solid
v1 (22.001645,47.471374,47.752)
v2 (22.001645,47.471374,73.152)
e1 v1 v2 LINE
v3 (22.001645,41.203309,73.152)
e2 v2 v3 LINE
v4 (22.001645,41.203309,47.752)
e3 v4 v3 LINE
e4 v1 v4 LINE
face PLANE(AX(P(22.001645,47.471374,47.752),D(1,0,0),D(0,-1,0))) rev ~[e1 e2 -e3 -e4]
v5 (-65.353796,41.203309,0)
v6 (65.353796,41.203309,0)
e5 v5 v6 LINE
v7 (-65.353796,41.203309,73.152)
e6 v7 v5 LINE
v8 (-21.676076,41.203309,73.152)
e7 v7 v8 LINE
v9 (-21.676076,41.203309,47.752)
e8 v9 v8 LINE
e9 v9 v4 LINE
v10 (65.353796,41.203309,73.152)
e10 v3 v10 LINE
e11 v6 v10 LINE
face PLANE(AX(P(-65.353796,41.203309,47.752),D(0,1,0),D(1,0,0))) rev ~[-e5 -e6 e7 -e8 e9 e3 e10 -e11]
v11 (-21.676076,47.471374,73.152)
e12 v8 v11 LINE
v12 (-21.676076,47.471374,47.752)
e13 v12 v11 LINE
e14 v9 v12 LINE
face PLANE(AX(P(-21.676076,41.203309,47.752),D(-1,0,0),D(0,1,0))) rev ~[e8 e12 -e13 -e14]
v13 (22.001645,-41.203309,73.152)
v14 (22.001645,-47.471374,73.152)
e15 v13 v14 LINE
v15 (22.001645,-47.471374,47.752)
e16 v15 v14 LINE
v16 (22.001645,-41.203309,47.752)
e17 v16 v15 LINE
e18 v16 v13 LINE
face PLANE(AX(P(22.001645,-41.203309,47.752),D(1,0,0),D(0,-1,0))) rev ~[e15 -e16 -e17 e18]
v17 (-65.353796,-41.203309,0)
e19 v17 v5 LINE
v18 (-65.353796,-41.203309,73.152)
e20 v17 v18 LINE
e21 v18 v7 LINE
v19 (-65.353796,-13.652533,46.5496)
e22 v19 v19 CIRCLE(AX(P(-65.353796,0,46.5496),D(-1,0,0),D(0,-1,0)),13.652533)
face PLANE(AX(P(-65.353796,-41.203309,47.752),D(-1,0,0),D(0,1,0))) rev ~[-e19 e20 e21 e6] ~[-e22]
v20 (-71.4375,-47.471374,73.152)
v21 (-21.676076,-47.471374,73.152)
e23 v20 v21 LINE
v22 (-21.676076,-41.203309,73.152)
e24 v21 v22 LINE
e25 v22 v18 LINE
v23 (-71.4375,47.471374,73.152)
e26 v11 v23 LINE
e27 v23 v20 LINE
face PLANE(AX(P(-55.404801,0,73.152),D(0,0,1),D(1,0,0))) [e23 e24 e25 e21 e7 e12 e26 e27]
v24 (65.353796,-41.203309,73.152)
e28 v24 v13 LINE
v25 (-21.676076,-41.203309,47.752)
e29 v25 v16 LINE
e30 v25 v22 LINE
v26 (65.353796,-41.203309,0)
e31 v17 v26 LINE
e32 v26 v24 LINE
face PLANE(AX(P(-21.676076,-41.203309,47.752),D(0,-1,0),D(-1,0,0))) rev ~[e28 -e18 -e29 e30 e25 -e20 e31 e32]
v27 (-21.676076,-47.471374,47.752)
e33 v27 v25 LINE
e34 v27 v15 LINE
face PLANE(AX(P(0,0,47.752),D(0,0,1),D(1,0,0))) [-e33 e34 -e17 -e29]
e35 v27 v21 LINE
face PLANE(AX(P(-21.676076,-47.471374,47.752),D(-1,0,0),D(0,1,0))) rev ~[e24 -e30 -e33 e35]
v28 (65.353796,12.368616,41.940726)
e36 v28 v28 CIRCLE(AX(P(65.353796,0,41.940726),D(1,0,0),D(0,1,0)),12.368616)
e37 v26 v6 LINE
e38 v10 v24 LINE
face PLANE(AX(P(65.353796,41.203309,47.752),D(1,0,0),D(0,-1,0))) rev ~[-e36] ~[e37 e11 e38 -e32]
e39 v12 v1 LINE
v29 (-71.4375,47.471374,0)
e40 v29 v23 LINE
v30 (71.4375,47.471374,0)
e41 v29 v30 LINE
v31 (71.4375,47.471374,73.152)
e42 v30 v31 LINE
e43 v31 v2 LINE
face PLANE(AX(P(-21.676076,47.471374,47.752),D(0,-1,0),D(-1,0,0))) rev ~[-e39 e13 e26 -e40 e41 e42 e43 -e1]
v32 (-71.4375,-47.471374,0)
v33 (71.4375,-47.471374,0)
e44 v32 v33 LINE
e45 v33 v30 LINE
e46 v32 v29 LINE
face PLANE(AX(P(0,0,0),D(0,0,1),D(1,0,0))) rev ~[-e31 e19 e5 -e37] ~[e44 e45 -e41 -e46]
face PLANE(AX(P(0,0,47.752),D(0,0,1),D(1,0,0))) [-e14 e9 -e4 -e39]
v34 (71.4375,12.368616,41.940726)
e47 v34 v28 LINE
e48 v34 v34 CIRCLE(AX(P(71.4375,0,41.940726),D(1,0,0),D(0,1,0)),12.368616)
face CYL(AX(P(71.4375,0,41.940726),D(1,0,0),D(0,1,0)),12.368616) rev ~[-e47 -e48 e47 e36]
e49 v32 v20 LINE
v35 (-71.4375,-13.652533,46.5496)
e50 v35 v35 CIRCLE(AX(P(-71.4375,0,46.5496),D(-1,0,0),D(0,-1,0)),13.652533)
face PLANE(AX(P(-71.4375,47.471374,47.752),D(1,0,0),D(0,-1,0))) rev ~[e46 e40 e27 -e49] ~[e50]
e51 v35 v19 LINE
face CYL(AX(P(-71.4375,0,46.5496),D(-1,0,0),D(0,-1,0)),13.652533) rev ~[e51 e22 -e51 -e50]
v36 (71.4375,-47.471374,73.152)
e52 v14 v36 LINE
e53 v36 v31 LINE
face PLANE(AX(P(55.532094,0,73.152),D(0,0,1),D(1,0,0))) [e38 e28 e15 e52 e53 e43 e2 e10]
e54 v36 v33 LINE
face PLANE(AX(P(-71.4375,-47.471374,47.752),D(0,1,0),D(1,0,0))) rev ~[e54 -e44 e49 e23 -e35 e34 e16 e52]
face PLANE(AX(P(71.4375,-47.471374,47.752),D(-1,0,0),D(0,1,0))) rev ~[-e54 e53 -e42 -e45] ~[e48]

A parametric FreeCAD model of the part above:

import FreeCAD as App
import Part
import Sketcher

V = App.Vector
Q = App.Units.Quantity

doc = App.newDocument("Part")
params = doc.addObject("Spreadsheet::Sheet", "Params")
for row, (alias, value) in enumerate([
    ("sketch1_width", "5.625 in"),
    ("pad1_length", "1.88 in"),
    ("pad2_length", "1 in"),
    ("pad3_length", "1 in"),
    ("pocket1_length", "1 in"),
    ("pocket2_length", "1 in"),
], start=1):
    params.set(f"A{row}", alias)
    params.set(f"B{row}", "=" + value)
    params.setAlias(f"B{row}", alias)

body = doc.addObject("PartDesign::Body", "Body")

sketch1 = body.newObject("Sketcher::SketchObject", "Sketch")
sketch1.AttachmentSupport = (doc.getObject("XY_Plane"), [""])
sketch1.MapMode = "FlatFace"
sketch1.addGeometry([
    Part.LineSegment(V(-71, 47, 0), V(-71, -47, 0)),
    Part.LineSegment(V(-71, -47, 0), V(71, -47, 0)),
    Part.LineSegment(V(71, -47, 0), V(71, 47, 0)),
    Part.LineSegment(V(71, 47, 0), V(-71, 47, 0)),
    Part.LineSegment(V(65, -41, 0), V(-65, -41, 0)),
    Part.LineSegment(V(-65, -41, 0), V(-65, 41, 0)),
    Part.LineSegment(V(-65, 41, 0), V(65, 41, 0)),
    Part.LineSegment(V(65, 41, 0), V(65, -41, 0)),
], False)
sketch1.addConstraint([
    Sketcher.Constraint("Coincident", 0, 2, 1, 1),
    Sketcher.Constraint("Coincident", 1, 2, 2, 1),
    Sketcher.Constraint("Coincident", 2, 2, 3, 1),
    Sketcher.Constraint("Coincident", 3, 2, 0, 1),
    Sketcher.Constraint("Coincident", 4, 2, 5, 1),
    Sketcher.Constraint("Coincident", 5, 2, 6, 1),
    Sketcher.Constraint("Coincident", 6, 2, 7, 1),
    Sketcher.Constraint("Coincident", 7, 2, 4, 1),
    Sketcher.Constraint("Vertical", 0),
    Sketcher.Constraint("Horizontal", 1),
    Sketcher.Constraint("Vertical", 2),
    Sketcher.Constraint("Horizontal", 3),
    Sketcher.Constraint("Horizontal", 4),
    Sketcher.Constraint("Vertical", 5),
    Sketcher.Constraint("Horizontal", 6),
    Sketcher.Constraint("Vertical", 7),
    Sketcher.Constraint("Symmetric", 0, 2, 2, 2, -1, 1),
    Sketcher.Constraint("Symmetric", 4, 2, 6, 2, -1, 1),
    Sketcher.Constraint("DistanceX", 1, 1, 1, 2, Q("5.625 in")),
    Sketcher.Constraint("DistanceX", 4, 2, 4, 1, 130.707592),
    Sketcher.Constraint("DistanceY", 0, 2, 0, 1, 94.942749),
    Sketcher.Constraint("DistanceY", 5, 1, 5, 2, 82.406618),
])
sketch1.setExpression("Constraints[18]", "Params.sketch1_width")
pad1 = body.newObject("PartDesign::Pad", "Pad")
pad1.Profile = sketch1
pad1.setExpression("Length", "Params.pad1_length")

sketch2 = body.newObject("Sketcher::SketchObject", "Sketch001")
sketch2.AttachmentSupport = (doc.getObject("XY_Plane"), [""])
sketch2.MapMode = "FlatFace"
sketch2.AttachmentOffset = App.Placement(V(0, 0, 1.88 * 25.4), App.Rotation())
sketch2.addGeometry([
    Part.LineSegment(V(71, -47, 0), V(71, 47, 0)),
    Part.LineSegment(V(71, 47, 0), V(22, 47, 0)),
    Part.LineSegment(V(22, 47, 0), V(22, 41, 0)),
    Part.LineSegment(V(22, 41, 0), V(65, 41, 0)),
    Part.LineSegment(V(65, 41, 0), V(65, -41, 0)),
    Part.LineSegment(V(65, -41, 0), V(22, -41, 0)),
    Part.LineSegment(V(22, -41, 0), V(22, -47, 0)),
    Part.LineSegment(V(22, -47, 0), V(71, -47, 0)),
], False)
sketch2.addConstraint([
    Sketcher.Constraint("Coincident", 0, 2, 1, 1),
    Sketcher.Constraint("Coincident", 1, 2, 2, 1),
    Sketcher.Constraint("Coincident", 2, 2, 3, 1),
    Sketcher.Constraint("Coincident", 3, 2, 4, 1),
    Sketcher.Constraint("Coincident", 4, 2, 5, 1),
    Sketcher.Constraint("Coincident", 5, 2, 6, 1),
    Sketcher.Constraint("Coincident", 6, 2, 7, 1),
    Sketcher.Constraint("Coincident", 7, 2, 0, 1),
    Sketcher.Constraint("Vertical", 0),
    Sketcher.Constraint("Horizontal", 1),
    Sketcher.Constraint("Vertical", 2),
    Sketcher.Constraint("Horizontal", 3),
    Sketcher.Constraint("Vertical", 4),
    Sketcher.Constraint("Horizontal", 5),
    Sketcher.Constraint("Vertical", 6),
    Sketcher.Constraint("Horizontal", 7),
    Sketcher.Constraint("Symmetric", 2, 2, 5, 2, -1),
    Sketcher.Constraint("Equal", 2, 6),
    Sketcher.Constraint("DistanceX", -1, 1, 0, 2, Q("2.8125 in")),
    Sketcher.Constraint("DistanceX", 3, 1, 3, 2, 43.352151),
    Sketcher.Constraint("DistanceY", 0, 1, 0, 2, 94.942749),
    Sketcher.Constraint("DistanceX", 1, 2, 1, 1, 49.435856),
    Sketcher.Constraint("DistanceY", 2, 2, 2, 1, 6.268065),
])
pad2 = body.newObject("PartDesign::Pad", "Pad001")
pad2.Profile = sketch2
pad2.setExpression("Length", "Params.pad2_length")

sketch3 = body.newObject("Sketcher::SketchObject", "Sketch002")
sketch3.AttachmentSupport = (doc.getObject("XY_Plane"), [""])
sketch3.MapMode = "FlatFace"
sketch3.AttachmentOffset = App.Placement(V(0, 0, 1.88 * 25.4), App.Rotation())
sketch3.addGeometry([
    Part.LineSegment(V(-22, 47, 0), V(-71, 47, 0)),
    Part.LineSegment(V(-71, 47, 0), V(-71, -47, 0)),
    Part.LineSegment(V(-71, -47, 0), V(-22, -47, 0)),
    Part.LineSegment(V(-22, -47, 0), V(-22, -41, 0)),
    Part.LineSegment(V(-22, -41, 0), V(-65, -41, 0)),
    Part.LineSegment(V(-65, -41, 0), V(-65, 41, 0)),
    Part.LineSegment(V(-65, 41, 0), V(-22, 41, 0)),
    Part.LineSegment(V(-22, 41, 0), V(-22, 47, 0)),
], False)
sketch3.addConstraint([
    Sketcher.Constraint("Coincident", 0, 2, 1, 1),
    Sketcher.Constraint("Coincident", 1, 2, 2, 1),
    Sketcher.Constraint("Coincident", 2, 2, 3, 1),
    Sketcher.Constraint("Coincident", 3, 2, 4, 1),
    Sketcher.Constraint("Coincident", 4, 2, 5, 1),
    Sketcher.Constraint("Coincident", 5, 2, 6, 1),
    Sketcher.Constraint("Coincident", 6, 2, 7, 1),
    Sketcher.Constraint("Coincident", 7, 2, 0, 1),
    Sketcher.Constraint("Horizontal", 0),
    Sketcher.Constraint("Vertical", 1),
    Sketcher.Constraint("Horizontal", 2),
    Sketcher.Constraint("Vertical", 3),
    Sketcher.Constraint("Horizontal", 4),
    Sketcher.Constraint("Vertical", 5),
    Sketcher.Constraint("Horizontal", 6),
    Sketcher.Constraint("Vertical", 7),
    Sketcher.Constraint("Symmetric", 3, 2, 6, 2, -1),
    Sketcher.Constraint("Equal", 3, 7),
    Sketcher.Constraint("DistanceX", 0, 2, -1, 1, Q("2.8125 in")),
    Sketcher.Constraint("DistanceX", 4, 2, 4, 1, 43.67772),
    Sketcher.Constraint("DistanceY", 1, 2, 1, 1, 94.942749),
    Sketcher.Constraint("DistanceX", 0, 2, 0, 1, 49.761425),
    Sketcher.Constraint("DistanceY", 3, 1, 3, 2, 6.268065),
])
pad3 = body.newObject("PartDesign::Pad", "Pad002")
pad3.Profile = sketch3
pad3.setExpression("Length", "Params.pad3_length")

sketch4 = body.newObject("Sketcher::SketchObject", "Sketch003")
sketch4.AttachmentSupport = (doc.getObject("YZ_Plane"), [""])
sketch4.MapMode = "FlatFace"
sketch4.AttachmentOffset = App.Placement(V(0, 0, 2.8125 * 25.4), App.Rotation())
sketch4.addGeometry(Part.Circle(V(0, 42, 0), V(0, 0, 1), 12), False)
sketch4.addConstraint([
    Sketcher.Constraint("PointOnObject", 0, 3, -2),
    Sketcher.Constraint("Diameter", 0, 24.737231),
    Sketcher.Constraint("DistanceY", -1, 1, 0, 3, 41.940726),
])
pocket1 = body.newObject("PartDesign::Pocket", "Pocket")
pocket1.Profile = sketch4
pocket1.setExpression("Length", "Params.pocket1_length")

sketch5 = body.newObject("Sketcher::SketchObject", "Sketch004")
sketch5.AttachmentSupport = (doc.getObject("YZ_Plane"), [""])
sketch5.MapMode = "FlatFace"
sketch5.AttachmentOffset = App.Placement(V(0, 0, -2.8125 * 25.4), App.Rotation())
sketch5.addGeometry(Part.Circle(V(0, 47, 0), V(0, 0, 1), 14), False)
sketch5.addConstraint([
    Sketcher.Constraint("PointOnObject", 0, 3, -2),
    Sketcher.Constraint("Diameter", 0, 27.305067),
    Sketcher.Constraint("DistanceY", -1, 1, 0, 3, 46.5496),
])
pocket2 = body.newObject("PartDesign::Pocket", "Pocket001")
pocket2.Profile = sketch5
pocket2.setExpression("Length", "Params.pocket2_length")
pocket2.Reversed = True

doc.recompute()
